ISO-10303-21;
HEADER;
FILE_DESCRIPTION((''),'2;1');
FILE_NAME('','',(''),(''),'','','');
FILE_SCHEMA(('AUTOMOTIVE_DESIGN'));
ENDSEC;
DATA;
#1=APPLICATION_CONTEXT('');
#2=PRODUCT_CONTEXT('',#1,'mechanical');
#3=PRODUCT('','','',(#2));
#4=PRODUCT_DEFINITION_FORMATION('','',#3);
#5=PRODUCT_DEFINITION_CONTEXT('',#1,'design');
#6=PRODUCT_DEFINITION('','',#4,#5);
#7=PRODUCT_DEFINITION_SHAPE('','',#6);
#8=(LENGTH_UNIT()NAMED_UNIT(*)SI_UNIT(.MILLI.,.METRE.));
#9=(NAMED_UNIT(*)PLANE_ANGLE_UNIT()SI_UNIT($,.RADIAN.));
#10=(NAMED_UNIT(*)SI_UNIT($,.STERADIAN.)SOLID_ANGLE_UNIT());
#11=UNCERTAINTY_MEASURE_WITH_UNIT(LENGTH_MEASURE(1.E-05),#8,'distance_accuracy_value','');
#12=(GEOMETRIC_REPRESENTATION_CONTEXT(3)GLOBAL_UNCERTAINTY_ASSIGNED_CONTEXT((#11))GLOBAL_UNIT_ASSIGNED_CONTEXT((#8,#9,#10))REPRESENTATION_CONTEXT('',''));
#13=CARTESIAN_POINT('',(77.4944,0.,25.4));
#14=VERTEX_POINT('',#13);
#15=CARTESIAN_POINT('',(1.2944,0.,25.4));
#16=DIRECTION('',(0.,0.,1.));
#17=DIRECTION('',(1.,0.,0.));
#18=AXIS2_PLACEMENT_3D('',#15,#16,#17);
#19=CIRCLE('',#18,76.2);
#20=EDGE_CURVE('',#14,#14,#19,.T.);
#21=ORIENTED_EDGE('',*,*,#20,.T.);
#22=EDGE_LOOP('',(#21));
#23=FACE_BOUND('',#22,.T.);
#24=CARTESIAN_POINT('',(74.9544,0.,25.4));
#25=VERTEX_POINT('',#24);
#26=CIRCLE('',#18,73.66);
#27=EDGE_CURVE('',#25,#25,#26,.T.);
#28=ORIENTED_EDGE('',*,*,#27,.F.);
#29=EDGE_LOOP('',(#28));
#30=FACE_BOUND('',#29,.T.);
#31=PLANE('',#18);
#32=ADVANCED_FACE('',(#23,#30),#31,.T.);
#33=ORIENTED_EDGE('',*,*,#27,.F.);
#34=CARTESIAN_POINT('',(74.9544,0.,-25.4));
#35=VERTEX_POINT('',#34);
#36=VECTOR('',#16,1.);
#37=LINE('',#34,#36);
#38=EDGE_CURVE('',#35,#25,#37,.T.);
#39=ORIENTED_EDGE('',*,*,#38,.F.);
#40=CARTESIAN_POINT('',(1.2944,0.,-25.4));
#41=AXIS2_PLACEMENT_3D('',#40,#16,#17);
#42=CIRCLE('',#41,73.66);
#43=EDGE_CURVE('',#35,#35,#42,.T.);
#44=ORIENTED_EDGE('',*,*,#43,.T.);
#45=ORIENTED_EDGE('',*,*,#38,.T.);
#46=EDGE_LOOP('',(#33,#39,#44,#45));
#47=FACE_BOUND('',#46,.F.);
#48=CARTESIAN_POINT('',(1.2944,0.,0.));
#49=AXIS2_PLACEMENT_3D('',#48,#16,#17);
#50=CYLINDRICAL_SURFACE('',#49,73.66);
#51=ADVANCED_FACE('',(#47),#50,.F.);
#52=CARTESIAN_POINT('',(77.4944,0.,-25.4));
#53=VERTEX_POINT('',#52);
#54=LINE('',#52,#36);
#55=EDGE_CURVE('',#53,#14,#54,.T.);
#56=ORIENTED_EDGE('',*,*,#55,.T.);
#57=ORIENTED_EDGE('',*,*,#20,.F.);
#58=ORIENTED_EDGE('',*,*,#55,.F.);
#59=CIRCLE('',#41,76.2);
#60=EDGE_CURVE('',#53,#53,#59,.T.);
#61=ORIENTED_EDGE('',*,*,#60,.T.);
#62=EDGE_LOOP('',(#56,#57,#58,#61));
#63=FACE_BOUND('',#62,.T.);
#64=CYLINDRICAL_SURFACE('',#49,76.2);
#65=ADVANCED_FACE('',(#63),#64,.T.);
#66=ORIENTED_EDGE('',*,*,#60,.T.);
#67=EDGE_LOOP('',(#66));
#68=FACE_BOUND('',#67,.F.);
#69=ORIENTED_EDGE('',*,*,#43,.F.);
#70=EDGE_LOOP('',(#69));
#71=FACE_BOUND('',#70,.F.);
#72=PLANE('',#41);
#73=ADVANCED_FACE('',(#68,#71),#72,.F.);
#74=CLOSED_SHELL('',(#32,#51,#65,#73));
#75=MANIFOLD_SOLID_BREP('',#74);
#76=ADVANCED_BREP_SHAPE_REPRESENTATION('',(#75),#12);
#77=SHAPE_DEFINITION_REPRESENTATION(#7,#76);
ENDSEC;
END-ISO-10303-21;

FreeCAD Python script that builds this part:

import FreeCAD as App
import Part
import Sketcher
from FreeCAD import Vector
Q = App.Units.Quantity


def faces_at(feature, points):
    """Names of the faces that lie closest to the given points."""
    faces = feature.Shape.Faces
    near = lambda p: min(range(len(faces)), key=lambda i: faces[i].distToShape(Part.Vertex(*p))[0])
    return sorted({f"Face{near(p) + 1}" for p in points})

doc = App.newDocument("Part")
body = doc.addObject("PartDesign::Body", "Body")

# Sketch on XY plane
sketch1 = doc.addObject("Sketcher::SketchObject", "Sketch")
body.addObject(sketch1)
sketch1.AttachmentSupport = (doc.XY_Plane, [""])
sketch1.MapMode = "FlatFace"
sketch1.addGeometry(Part.Circle(Vector(1.2944, 0, 0), Vector(0, 0, 1), 76.2), False)
sketch1.addConstraint(Sketcher.Constraint("PointOnObject", 0, 3, -1))
sketch1.addConstraint(Sketcher.Constraint("Diameter", 0, Q("6 in")))
sketch1.addConstraint(Sketcher.Constraint("DistanceX", -1, 1, 0, 3, Q("1.2944 mm")))
pad1 = doc.addObject("PartDesign::Pad", "Pad")
body.addObject(pad1)
pad1.Profile = sketch1
pad1.Type = "TwoLengths"
pad1.Length = Q("1 in")
pad1.Length2 = Q("1 in")
doc.recompute()

thickness = doc.addObject("PartDesign::Thickness", "Thickness")
body.addObject(thickness)
thickness.Base = (pad1, faces_at(pad1, [(1.294, 0, 25.4), (1.294, 0, -25.4)]))
thickness.Value = Q("0.1 in")
thickness.Reversed = True
thickness.Join = "Arc"

doc.recompute()
